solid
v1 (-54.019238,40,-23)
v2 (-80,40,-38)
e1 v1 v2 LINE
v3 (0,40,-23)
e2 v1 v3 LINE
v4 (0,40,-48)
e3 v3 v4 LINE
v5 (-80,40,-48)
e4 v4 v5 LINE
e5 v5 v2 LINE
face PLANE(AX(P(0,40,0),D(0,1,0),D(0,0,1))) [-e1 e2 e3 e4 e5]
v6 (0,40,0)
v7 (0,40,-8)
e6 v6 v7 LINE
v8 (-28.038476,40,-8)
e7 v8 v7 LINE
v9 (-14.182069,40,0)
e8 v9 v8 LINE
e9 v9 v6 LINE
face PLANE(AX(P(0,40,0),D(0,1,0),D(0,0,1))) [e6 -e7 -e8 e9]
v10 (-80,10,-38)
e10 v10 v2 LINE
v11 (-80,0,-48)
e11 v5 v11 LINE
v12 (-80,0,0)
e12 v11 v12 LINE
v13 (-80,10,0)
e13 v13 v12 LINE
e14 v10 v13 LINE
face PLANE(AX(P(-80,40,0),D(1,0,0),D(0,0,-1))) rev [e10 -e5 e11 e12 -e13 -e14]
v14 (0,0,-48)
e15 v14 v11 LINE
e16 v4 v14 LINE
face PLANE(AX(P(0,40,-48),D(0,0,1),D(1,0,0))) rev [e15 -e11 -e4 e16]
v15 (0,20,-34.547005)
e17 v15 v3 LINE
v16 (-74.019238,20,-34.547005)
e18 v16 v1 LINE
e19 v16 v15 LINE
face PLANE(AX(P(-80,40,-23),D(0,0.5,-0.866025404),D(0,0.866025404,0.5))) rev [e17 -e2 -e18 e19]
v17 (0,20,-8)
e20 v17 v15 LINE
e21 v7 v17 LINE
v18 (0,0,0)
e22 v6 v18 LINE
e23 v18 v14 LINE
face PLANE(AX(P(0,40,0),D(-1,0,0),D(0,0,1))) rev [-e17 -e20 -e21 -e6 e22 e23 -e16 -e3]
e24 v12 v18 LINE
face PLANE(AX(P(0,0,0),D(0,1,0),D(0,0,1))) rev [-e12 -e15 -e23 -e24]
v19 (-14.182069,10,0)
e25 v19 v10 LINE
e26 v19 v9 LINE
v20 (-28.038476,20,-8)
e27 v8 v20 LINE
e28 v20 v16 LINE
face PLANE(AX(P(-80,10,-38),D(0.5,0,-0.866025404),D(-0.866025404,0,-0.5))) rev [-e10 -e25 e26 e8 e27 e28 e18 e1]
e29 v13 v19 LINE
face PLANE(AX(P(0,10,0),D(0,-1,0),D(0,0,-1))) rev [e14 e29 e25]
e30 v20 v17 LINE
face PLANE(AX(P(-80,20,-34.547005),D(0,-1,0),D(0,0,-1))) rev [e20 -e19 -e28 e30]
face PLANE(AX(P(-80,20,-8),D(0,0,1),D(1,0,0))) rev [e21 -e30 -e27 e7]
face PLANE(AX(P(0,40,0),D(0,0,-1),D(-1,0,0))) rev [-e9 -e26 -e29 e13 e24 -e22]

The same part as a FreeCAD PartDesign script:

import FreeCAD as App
import Part
import Sketcher
Q = App.Units.Quantity


def add_polygon(sketch, points):
    """Adds a closed chain of lines whose ends are joined by coincident constraints."""
    first, n = sketch.GeometryCount, len(points)
    for a, b in zip(points, points[1:] + points[:1]):
        sketch.addGeometry(Part.LineSegment(App.Vector(*a, 0), App.Vector(*b, 0)), False)
    for i in range(n):
        sketch.addConstraint(Sketcher.Constraint("Coincident", first + i, 2, first + (i + 1) % n, 1))

doc = App.newDocument("Part")
body = doc.addObject("PartDesign::Body", "Body")

# Sketch on XZ plane
sketch1 = body.newObject("Sketcher::SketchObject", "Sketch")
sketch1.AttachmentSupport = (doc.getObject("XZ_Plane"), [""])
sketch1.MapMode = "FlatFace"
add_polygon(sketch1, [(-80, -48), (-80, 0), (0, 0), (0, -48)])  # lines 0-3
sketch1.addConstraint(Sketcher.Constraint("Vertical", 0))
sketch1.addConstraint(Sketcher.Constraint("Horizontal", 1))
sketch1.addConstraint(Sketcher.Constraint("Vertical", 2))
sketch1.addConstraint(Sketcher.Constraint("Horizontal", 3))
sketch1.addConstraint(Sketcher.Constraint("Coincident", 1, 2, -1, 1))
sketch1.addConstraint(Sketcher.Constraint("DistanceX", 1, 1, 1, 2, Q("80 mm")))
sketch1.addConstraint(Sketcher.Constraint("DistanceY", 0, 1, 0, 2, Q("48 mm")))
pad1 = body.newObject("PartDesign::Pad", "Pad")
pad1.Profile = sketch1
pad1.Length = 40
pad1.Reversed = True

# Sketch on XZ plane
sketch2 = body.newObject("Sketcher::SketchObject", "Sketch001")
sketch2.AttachmentSupport = (doc.getObject("XZ_Plane"), [""])
sketch2.MapMode = "FlatFace"
sketch2.AttachmentOffset = App.Placement(App.Vector(0, 0, -40), App.Rotation())
add_polygon(sketch2, [(-80, -38), (-80, 0), (-14.182069, 0)])  # lines 0-2
sketch2.addConstraint(Sketcher.Constraint("Vertical", 0))
sketch2.addConstraint(Sketcher.Constraint("Horizontal", 1))
sketch2.addConstraint(Sketcher.Constraint("PointOnObject", 0, 2, -1))
sketch2.addConstraint(Sketcher.Constraint("DistanceY", 0, 1, 0, 2, Q("38 mm")))
sketch2.addConstraint(Sketcher.Constraint("Angle", 2, Q("-150 deg")))
sketch2.addConstraint(Sketcher.Constraint("DistanceX", 0, 2, -1, 1, Q("80 mm")))
pocket1 = body.newObject("PartDesign::Pocket", "Pocket")
pocket1.Profile = sketch2
pocket1.Length = 30
pocket1.Reversed = True

# Sketch on YZ plane
sketch3 = body.newObject("Sketcher::SketchObject", "Sketch002")
sketch3.AttachmentSupport = (doc.getObject("YZ_Plane"), [""])
sketch3.MapMode = "FlatFace"
add_polygon(sketch3, [(20, -34.547005), (40, -23), (40, -8), (20, -8)])  # lines 0-3
sketch3.addConstraint(Sketcher.Constraint("Vertical", 1))
sketch3.addConstraint(Sketcher.Constraint("Horizontal", 2))
sketch3.addConstraint(Sketcher.Constraint("Vertical", 3))
sketch3.addConstraint(Sketcher.Constraint("DistanceX", 2, 2, 2, 1, Q("20 mm")))
sketch3.addConstraint(Sketcher.Constraint("DistanceY", 1, 1, 1, 2, Q("15 mm")))
sketch3.addConstraint(Sketcher.Constraint("Angle", 0, Q("30 deg")))
sketch3.addConstraint(Sketcher.Constraint("DistanceX", -1, 1, 0, 2, Q("40 mm")))
sketch3.addConstraint(Sketcher.Constraint("DistanceY", 0, 2, -1, 1, Q("23 mm")))
pocket2 = body.newObject("PartDesign::Pocket", "Pocket001")
pocket2.Profile = sketch3
pocket2.Type = "ThroughAll"

doc.recompute()
